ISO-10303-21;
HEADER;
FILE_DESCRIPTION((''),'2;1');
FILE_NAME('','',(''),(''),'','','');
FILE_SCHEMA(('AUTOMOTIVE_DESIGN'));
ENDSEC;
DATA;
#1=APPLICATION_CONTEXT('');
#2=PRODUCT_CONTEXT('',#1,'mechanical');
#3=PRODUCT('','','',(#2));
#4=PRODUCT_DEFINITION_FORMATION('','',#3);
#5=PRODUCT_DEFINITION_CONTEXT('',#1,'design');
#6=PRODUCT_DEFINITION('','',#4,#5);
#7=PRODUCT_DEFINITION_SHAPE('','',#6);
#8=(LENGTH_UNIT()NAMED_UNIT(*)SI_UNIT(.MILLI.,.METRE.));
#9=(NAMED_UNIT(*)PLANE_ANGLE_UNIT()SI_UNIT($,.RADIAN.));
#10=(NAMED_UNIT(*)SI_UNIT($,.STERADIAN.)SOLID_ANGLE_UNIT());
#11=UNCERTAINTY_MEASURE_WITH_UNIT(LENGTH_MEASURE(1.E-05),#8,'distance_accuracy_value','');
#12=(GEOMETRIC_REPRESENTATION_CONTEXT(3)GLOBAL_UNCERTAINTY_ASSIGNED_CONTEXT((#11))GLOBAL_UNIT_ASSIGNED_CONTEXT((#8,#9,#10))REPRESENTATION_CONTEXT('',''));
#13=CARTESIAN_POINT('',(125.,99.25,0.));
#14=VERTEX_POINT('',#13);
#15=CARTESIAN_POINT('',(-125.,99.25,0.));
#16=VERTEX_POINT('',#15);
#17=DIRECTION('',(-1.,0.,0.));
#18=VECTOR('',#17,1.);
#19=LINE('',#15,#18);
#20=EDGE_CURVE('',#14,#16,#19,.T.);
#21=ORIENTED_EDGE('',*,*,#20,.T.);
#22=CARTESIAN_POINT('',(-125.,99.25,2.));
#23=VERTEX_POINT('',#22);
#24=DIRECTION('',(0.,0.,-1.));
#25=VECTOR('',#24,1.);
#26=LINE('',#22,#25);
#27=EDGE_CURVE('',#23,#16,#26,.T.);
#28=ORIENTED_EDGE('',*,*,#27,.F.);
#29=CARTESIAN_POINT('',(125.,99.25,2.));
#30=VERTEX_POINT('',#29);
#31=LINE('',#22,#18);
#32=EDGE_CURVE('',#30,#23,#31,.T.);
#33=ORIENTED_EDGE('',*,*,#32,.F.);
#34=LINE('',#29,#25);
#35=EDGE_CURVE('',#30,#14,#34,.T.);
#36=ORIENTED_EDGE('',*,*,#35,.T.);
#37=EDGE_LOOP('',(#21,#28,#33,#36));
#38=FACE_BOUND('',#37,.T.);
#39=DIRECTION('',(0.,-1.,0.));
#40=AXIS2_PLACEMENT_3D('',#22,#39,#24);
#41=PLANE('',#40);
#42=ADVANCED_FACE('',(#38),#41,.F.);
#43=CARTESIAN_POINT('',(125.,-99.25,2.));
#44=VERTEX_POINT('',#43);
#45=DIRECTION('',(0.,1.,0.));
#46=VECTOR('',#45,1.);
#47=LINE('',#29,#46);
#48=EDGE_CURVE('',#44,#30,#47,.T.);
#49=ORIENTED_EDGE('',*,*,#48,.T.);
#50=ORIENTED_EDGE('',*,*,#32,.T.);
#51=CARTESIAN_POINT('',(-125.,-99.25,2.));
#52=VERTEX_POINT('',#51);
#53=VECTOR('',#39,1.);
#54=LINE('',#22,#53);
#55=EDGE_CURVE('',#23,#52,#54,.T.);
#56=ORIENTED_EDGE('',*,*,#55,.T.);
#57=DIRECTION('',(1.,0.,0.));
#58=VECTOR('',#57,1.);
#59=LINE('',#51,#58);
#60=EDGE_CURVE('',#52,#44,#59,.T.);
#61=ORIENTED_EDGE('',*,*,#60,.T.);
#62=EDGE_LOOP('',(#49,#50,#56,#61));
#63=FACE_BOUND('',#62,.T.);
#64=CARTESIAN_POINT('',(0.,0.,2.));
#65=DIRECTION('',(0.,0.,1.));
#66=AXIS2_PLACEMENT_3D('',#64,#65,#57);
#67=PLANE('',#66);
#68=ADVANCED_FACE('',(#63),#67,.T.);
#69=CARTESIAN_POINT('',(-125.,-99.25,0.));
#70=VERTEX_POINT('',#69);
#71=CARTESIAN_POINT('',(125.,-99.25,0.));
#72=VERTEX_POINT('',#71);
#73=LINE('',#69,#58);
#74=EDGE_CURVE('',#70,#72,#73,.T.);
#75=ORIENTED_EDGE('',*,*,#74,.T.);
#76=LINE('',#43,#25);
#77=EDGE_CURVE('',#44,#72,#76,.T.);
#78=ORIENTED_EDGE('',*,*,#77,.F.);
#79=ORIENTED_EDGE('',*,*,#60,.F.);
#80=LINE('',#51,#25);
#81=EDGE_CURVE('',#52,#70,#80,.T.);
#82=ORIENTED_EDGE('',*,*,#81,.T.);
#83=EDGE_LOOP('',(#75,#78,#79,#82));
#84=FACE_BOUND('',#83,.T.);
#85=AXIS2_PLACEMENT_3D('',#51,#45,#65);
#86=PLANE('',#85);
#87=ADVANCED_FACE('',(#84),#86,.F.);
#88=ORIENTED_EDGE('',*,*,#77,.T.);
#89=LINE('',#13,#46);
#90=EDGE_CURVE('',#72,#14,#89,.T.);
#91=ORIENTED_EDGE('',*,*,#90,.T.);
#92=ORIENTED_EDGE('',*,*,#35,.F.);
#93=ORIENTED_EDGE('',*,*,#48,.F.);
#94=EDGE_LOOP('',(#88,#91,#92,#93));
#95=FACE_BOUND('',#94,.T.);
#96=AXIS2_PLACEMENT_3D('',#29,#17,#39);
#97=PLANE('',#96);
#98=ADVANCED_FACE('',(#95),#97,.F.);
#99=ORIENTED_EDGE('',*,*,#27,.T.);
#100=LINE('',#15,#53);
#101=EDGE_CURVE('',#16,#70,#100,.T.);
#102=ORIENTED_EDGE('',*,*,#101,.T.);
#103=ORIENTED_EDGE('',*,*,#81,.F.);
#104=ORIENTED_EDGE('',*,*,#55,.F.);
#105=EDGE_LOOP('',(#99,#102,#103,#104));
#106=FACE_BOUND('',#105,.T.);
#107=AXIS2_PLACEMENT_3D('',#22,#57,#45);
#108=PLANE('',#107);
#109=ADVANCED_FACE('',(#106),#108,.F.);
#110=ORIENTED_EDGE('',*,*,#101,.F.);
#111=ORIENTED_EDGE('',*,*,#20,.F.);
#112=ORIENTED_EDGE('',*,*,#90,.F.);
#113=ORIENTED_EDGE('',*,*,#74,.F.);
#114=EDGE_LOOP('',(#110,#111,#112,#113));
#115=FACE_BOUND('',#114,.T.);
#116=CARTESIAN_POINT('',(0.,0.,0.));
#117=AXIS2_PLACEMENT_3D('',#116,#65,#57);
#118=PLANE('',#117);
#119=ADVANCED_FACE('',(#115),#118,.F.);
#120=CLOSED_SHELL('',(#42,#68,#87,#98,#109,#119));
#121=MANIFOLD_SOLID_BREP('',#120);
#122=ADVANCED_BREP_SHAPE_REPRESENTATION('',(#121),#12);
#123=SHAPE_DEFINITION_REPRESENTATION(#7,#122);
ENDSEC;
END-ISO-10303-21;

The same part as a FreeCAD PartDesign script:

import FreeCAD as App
import Part
import Sketcher

doc = App.newDocument("Part")
body = doc.addObject("PartDesign::Body", "Body")

# Sketch on XY plane
sketch1 = body.newObject("Sketcher::SketchObject", "Sketch")
sketch1.AttachmentSupport = (doc.getObject("XY_Plane"), [""])
sketch1.MapMode = "FlatFace"
sketch1.addGeometry(Part.LineSegment(App.Vector(-125, 99, 0), App.Vector(-125, -99, 0)), False)
sketch1.addGeometry(Part.LineSegment(App.Vector(-125, -99, 0), App.Vector(125, -99, 0)), False)
sketch1.addGeometry(Part.LineSegment(App.Vector(125, -99, 0), App.Vector(125, 99, 0)), False)
sketch1.addGeometry(Part.LineSegment(App.Vector(125, 99, 0), App.Vector(-125, 99, 0)), False)
sketch1.addConstraint(Sketcher.Constraint("Coincident", 0, 2, 1, 1))
sketch1.addConstraint(Sketcher.Constraint("Coincident", 1, 2, 2, 1))
sketch1.addConstraint(Sketcher.Constraint("Coincident", 2, 2, 3, 1))
sketch1.addConstraint(Sketcher.Constraint("Coincident", 3, 2, 0, 1))
sketch1.addConstraint(Sketcher.Constraint("Vertical", 0))
sketch1.addConstraint(Sketcher.Constraint("Horizontal", 1))
sketch1.addConstraint(Sketcher.Constraint("Vertical", 2))
sketch1.addConstraint(Sketcher.Constraint("Horizontal", 3))
sketch1.addConstraint(Sketcher.Constraint("Symmetric", 0, 2, 2, 2, -1, 1))
sketch1.addConstraint(Sketcher.Constraint("DistanceX", 1, 1, 1, 2, 250.0))
sketch1.addConstraint(Sketcher.Constraint("DistanceY", 0, 2, 0, 1, 198.5))
pad1 = body.newObject("PartDesign::Pad", "Pad")
pad1.Profile = sketch1
pad1.Length = 2

doc.recompute()
